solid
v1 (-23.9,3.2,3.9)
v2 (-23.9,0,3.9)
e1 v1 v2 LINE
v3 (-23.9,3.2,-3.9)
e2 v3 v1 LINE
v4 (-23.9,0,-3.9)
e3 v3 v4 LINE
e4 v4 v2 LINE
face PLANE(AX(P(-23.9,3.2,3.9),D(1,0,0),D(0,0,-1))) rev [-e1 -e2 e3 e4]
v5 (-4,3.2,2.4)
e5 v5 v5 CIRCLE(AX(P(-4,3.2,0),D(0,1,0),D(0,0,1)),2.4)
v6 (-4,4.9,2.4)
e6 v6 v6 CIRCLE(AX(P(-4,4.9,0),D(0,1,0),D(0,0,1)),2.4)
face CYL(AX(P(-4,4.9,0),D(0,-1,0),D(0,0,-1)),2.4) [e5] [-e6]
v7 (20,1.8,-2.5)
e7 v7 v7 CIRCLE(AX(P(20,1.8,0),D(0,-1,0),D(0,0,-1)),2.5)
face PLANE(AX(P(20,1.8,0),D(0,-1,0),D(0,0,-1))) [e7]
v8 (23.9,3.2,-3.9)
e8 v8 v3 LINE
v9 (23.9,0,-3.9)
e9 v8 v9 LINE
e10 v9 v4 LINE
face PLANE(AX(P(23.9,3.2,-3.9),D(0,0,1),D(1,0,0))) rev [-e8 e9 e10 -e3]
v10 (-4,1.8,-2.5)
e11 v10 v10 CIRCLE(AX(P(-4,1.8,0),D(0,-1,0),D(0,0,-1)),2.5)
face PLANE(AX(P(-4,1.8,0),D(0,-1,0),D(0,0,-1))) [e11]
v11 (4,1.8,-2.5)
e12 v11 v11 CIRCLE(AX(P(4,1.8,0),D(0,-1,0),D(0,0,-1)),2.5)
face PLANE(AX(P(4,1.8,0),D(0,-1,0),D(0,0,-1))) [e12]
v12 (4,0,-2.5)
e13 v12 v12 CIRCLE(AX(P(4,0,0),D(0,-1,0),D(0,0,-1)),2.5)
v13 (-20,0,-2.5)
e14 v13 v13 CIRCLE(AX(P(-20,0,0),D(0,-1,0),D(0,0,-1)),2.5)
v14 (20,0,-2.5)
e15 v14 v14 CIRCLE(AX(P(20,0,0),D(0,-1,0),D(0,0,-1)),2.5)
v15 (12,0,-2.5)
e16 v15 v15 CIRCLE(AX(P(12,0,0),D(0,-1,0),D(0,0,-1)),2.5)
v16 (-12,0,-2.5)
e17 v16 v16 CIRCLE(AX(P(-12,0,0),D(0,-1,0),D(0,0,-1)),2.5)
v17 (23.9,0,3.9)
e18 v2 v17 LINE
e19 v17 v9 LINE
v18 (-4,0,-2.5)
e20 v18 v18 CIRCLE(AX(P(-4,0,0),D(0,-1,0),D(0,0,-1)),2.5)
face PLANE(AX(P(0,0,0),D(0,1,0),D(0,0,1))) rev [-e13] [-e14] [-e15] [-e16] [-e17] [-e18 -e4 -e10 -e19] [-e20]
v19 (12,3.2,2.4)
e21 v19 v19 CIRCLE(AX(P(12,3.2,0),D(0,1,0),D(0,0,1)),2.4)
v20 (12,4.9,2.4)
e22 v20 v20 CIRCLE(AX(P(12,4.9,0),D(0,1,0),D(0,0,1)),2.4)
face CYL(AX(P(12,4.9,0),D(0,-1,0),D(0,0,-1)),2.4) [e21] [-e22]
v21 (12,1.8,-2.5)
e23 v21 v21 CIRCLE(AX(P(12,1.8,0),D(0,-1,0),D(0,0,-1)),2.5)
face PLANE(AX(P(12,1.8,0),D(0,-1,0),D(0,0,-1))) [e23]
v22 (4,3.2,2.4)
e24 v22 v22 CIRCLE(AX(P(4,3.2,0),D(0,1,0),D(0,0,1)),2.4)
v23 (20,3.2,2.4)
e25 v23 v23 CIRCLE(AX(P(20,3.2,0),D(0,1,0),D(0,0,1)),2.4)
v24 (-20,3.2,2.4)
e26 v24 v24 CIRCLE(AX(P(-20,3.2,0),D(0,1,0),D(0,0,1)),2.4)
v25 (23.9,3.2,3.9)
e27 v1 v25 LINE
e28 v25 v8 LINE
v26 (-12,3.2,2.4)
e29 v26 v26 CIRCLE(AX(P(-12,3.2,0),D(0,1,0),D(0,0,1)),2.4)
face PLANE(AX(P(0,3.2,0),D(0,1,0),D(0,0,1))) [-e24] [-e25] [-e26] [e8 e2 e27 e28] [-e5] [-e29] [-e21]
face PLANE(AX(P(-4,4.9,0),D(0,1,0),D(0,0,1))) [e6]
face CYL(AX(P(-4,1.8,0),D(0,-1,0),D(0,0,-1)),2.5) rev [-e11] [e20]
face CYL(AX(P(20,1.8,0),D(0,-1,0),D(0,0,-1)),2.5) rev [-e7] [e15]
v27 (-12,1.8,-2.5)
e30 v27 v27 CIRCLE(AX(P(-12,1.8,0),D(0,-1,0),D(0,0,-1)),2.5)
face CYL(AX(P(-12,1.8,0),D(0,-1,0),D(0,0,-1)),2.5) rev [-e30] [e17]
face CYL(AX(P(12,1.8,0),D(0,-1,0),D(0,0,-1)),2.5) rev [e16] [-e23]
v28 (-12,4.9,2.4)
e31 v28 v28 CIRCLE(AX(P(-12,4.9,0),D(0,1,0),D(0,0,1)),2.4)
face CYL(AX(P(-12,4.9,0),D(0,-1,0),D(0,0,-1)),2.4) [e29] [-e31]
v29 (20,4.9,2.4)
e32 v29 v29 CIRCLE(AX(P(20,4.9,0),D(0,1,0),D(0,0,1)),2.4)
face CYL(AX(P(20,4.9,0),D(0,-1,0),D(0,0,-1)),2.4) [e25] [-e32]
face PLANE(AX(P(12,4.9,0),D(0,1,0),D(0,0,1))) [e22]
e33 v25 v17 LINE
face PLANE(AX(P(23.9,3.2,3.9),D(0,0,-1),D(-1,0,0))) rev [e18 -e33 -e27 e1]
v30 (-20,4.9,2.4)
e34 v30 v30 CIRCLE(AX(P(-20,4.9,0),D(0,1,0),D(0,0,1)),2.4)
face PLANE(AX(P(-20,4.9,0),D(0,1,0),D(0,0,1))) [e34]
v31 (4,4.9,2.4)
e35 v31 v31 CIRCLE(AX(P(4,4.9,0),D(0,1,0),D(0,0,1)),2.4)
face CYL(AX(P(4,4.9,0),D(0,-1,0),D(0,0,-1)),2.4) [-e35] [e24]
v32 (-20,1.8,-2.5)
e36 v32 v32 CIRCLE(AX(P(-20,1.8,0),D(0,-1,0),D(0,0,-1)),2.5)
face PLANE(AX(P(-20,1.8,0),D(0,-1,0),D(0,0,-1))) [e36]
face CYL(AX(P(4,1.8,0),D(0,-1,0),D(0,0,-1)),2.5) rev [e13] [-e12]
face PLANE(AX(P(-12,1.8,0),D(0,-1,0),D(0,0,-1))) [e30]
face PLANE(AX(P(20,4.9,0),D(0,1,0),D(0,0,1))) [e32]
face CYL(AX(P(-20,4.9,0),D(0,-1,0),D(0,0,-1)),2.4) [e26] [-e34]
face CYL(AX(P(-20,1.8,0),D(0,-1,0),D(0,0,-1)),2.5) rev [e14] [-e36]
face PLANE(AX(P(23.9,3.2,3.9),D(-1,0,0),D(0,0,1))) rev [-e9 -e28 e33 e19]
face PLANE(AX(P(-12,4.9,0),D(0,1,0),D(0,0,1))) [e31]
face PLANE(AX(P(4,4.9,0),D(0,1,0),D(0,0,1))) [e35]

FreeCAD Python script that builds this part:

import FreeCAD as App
import Part
import Sketcher
from FreeCAD import Vector

doc = App.newDocument("Part")
body = doc.addObject("PartDesign::Body", "Body")

sketch1 = body.newObject("Sketcher::SketchObject", "Sketch")
sketch1.AttachmentSupport = (doc.getObject("XZ_Plane"), [""])
sketch1.MapMode = "FlatFace"
sketch1.addGeometry([
    Part.LineSegment(Vector(-24, -4, 0), Vector(-24, 4, 0)),
    Part.LineSegment(Vector(-24, 4, 0), Vector(24, 4, 0)),
    Part.LineSegment(Vector(24, 4, 0), Vector(24, -4, 0)),
    Part.LineSegment(Vector(24, -4, 0), Vector(-24, -4, 0)),
], False)
sketch1.addConstraint([
    Sketcher.Constraint("Coincident", 0, 2, 1, 1),
    Sketcher.Constraint("Coincident", 1, 2, 2, 1),
    Sketcher.Constraint("Coincident", 2, 2, 3, 1),
    Sketcher.Constraint("Coincident", 3, 2, 0, 1),
    Sketcher.Constraint("Vertical", 0),
    Sketcher.Constraint("Horizontal", 1),
    Sketcher.Constraint("Vertical", 2),
    Sketcher.Constraint("Horizontal", 3),
    Sketcher.Constraint("Symmetric", 0, 2, 2, 2, -1, 1),
    Sketcher.Constraint("DistanceX", 1, 1, 1, 2, 47.8),
    Sketcher.Constraint("DistanceY", 0, 1, 0, 2, 7.8),
])
pad1 = body.newObject("PartDesign::Pad", "Pad")
pad1.Profile = sketch1
pad1.Length = 3.2
pad1.Reversed = True

sketch2 = body.newObject("Sketcher::SketchObject", "Sketch001")
sketch2.AttachmentSupport = (doc.getObject("XZ_Plane"), [""])
sketch2.MapMode = "FlatFace"
sketch2.AttachmentOffset = App.Placement(Vector(0, 0, -3.2), App.Rotation())
sketch2.addGeometry([
    Part.Circle(Vector(-20, 0, 0), Vector(0, 0, 1), 2.4),
    Part.Circle(Vector(-12, 0, 0), Vector(0, 0, 1), 2.4),
    Part.Circle(Vector(-4, 0, 0), Vector(0, 0, 1), 2.4),
    Part.Circle(Vector(4, 0, 0), Vector(0, 0, 1), 2.4),
    Part.Circle(Vector(12, 0, 0), Vector(0, 0, 1), 2.4),
    Part.Circle(Vector(20, 0, 0), Vector(0, 0, 1), 2.4),
], False)
sketch2.addConstraint([
    Sketcher.Constraint("Equal", 0, 1),
    Sketcher.Constraint("Equal", 1, 2),
    Sketcher.Constraint("Equal", 2, 3),
    Sketcher.Constraint("Equal", 3, 4),
    Sketcher.Constraint("Equal", 4, 5),
    Sketcher.Constraint("Symmetric", 2, 3, 3, 3, -1, 1),
    Sketcher.Constraint("Symmetric", 1, 3, 4, 3, -1, 1),
    Sketcher.Constraint("Symmetric", 0, 3, 5, 3, -1, 1),
    Sketcher.Constraint("PointOnObject", 0, 3, -1),
    Sketcher.Constraint("PointOnObject", 1, 3, -1),
    Sketcher.Constraint("PointOnObject", 2, 3, -1),
    Sketcher.Constraint("Diameter", 0, 4.8),
    Sketcher.Constraint("DistanceX", 0, 3, -1, 1, 20.0),
    Sketcher.Constraint("DistanceX", 1, 3, -1, 1, 12.0),
    Sketcher.Constraint("DistanceX", 2, 3, -1, 1, 4.0),
])
pad2 = body.newObject("PartDesign::Pad", "Pad001")
pad2.Profile = sketch2
pad2.Length = 1.7
pad2.Reversed = True

sketch3 = body.newObject("Sketcher::SketchObject", "Sketch002")
sketch3.AttachmentSupport = (doc.getObject("XZ_Plane"), [""])
sketch3.MapMode = "FlatFace"
sketch3.addGeometry([
    Part.Circle(Vector(-20, 0, 0), Vector(0, 0, 1), 2.5),
    Part.Circle(Vector(-12, 0, 0), Vector(0, 0, 1), 2.5),
    Part.Circle(Vector(-4, 0, 0), Vector(0, 0, 1), 2.5),
    Part.Circle(Vector(4, 0, 0), Vector(0, 0, 1), 2.5),
    Part.Circle(Vector(12, 0, 0), Vector(0, 0, 1), 2.5),
    Part.Circle(Vector(20, 0, 0), Vector(0, 0, 1), 2.5),
], False)
sketch3.addConstraint([
    Sketcher.Constraint("Equal", 0, 1),
    Sketcher.Constraint("Equal", 1, 2),
    Sketcher.Constraint("Equal", 2, 3),
    Sketcher.Constraint("Equal", 3, 4),
    Sketcher.Constraint("Equal", 4, 5),
    Sketcher.Constraint("Symmetric", 2, 3, 3, 3, -1, 1),
    Sketcher.Constraint("Symmetric", 1, 3, 4, 3, -1, 1),
    Sketcher.Constraint("Symmetric", 0, 3, 5, 3, -1, 1),
    Sketcher.Constraint("PointOnObject", 0, 3, -1),
    Sketcher.Constraint("PointOnObject", 1, 3, -1),
    Sketcher.Constraint("PointOnObject", 2, 3, -1),
    Sketcher.Constraint("Diameter", 0, 5.0),
    Sketcher.Constraint("DistanceX", 0, 3, -1, 1, 20.0),
    Sketcher.Constraint("DistanceX", 1, 3, -1, 1, 12.0),
    Sketcher.Constraint("DistanceX", 2, 3, -1, 1, 4.0),
])
pocket1 = body.newObject("PartDesign::Pocket", "Pocket")
pocket1.Profile = sketch3
pocket1.Length = 1.8

doc.recompute()
